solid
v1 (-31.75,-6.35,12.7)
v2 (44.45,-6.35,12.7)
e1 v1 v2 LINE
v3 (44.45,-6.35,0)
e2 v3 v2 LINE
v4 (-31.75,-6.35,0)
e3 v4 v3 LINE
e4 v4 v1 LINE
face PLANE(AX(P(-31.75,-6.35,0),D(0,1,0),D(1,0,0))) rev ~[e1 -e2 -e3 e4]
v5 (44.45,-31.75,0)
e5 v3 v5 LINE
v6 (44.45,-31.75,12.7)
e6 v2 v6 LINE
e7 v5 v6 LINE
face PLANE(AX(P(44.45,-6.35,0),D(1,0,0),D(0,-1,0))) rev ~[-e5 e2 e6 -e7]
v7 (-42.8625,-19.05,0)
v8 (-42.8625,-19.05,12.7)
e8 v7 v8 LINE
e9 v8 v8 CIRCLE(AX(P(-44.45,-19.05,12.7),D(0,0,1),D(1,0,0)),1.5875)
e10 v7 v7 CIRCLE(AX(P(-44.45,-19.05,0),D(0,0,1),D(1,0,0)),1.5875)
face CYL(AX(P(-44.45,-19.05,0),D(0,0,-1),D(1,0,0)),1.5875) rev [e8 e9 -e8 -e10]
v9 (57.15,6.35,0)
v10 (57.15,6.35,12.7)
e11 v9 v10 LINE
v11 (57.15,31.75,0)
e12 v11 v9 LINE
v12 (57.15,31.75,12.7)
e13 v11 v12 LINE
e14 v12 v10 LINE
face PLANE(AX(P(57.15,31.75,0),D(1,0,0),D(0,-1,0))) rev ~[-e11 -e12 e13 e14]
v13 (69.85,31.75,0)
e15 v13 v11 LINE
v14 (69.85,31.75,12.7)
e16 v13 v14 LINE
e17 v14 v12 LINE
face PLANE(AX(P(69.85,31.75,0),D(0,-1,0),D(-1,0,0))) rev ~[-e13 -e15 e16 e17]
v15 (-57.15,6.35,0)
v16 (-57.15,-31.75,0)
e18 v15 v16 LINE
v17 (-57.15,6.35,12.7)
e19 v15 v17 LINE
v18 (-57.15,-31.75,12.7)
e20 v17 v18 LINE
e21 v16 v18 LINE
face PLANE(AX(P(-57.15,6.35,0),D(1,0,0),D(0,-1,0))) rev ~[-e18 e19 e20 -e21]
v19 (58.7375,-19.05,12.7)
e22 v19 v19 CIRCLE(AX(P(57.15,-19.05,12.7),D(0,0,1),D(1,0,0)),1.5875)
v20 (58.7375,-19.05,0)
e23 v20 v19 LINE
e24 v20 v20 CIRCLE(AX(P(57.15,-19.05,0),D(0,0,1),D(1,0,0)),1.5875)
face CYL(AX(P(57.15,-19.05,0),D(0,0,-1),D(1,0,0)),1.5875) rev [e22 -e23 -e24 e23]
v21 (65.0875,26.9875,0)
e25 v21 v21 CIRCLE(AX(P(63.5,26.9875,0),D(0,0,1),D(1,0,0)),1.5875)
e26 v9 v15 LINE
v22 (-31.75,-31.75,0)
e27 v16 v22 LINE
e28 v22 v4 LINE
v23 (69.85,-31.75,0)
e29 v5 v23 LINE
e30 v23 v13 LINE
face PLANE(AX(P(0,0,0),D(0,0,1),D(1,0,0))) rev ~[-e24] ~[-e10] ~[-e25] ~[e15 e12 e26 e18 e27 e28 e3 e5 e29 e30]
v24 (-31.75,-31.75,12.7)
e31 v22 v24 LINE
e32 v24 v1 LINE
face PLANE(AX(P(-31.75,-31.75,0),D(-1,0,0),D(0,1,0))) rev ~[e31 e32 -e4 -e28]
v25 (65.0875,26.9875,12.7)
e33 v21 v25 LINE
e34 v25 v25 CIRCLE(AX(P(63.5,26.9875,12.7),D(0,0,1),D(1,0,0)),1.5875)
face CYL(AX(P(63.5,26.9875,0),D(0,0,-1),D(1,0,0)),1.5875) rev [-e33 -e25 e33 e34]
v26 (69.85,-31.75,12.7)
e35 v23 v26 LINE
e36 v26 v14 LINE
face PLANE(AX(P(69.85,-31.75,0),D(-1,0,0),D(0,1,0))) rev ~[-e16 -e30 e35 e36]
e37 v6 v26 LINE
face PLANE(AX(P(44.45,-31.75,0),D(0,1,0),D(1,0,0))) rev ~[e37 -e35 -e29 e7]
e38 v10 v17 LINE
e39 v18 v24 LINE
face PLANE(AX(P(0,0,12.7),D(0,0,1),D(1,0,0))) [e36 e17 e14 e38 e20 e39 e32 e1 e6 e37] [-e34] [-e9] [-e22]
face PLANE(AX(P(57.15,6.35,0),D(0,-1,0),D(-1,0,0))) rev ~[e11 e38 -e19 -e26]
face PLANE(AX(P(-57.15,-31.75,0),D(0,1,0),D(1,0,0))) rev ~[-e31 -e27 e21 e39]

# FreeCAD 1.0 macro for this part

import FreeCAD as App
import Part
import Sketcher
from FreeCAD import Vector
Q = App.Units.Quantity

doc = App.newDocument("Part")
params = doc.addObject("Spreadsheet::Sheet", "Params")
for row, (alias, value) in enumerate([
    ("sketch1_width", "1 in"),
    ("sketch1_width2", "3 in"),
    ("sketch1_diameter", "0.125 in"),
    ("sketch1_width3", "4.5 in"),
    ("sketch1_height", "1.5 in"),
    ("pad1_length", "0.5 in"),
], start=1):
    params.set(f"A{row}", alias)
    params.set(f"B{row}", "=" + value)
    params.setAlias(f"B{row}", alias)

body = doc.addObject("PartDesign::Body", "Body")

# Sketch on XY plane
sketch1 = body.newObject("Sketcher::SketchObject", "Sketch")
sketch1.AttachmentSupport = (doc.getObject("XY_Plane"), [""])
sketch1.MapMode = "FlatFace"
sketch1.addGeometry(Part.LineSegment(Vector(57.1, 6.3, 0), Vector(-57.1, 6.3, 0)), False)
sketch1.addGeometry(Part.LineSegment(Vector(-57.1, 6.3, 0), Vector(-57.1, -31.8, 0)), False)
sketch1.addGeometry(Part.LineSegment(Vector(-57.1, -31.8, 0), Vector(-31.8, -31.8, 0)), False)
sketch1.addGeometry(Part.LineSegment(Vector(-31.8, -31.8, 0), Vector(-31.8, -6.3, 0)), False)
sketch1.addGeometry(Part.LineSegment(Vector(-31.8, -6.3, 0), Vector(44.5, -6.3, 0)), False)
sketch1.addGeometry(Part.LineSegment(Vector(44.5, -6.3, 0), Vector(44.5, -31.8, 0)), False)
sketch1.addGeometry(Part.LineSegment(Vector(44.5, -31.8, 0), Vector(69.8, -31.8, 0)), False)
sketch1.addGeometry(Part.LineSegment(Vector(69.8, -31.8, 0), Vector(69.8, 31.8, 0)), False)
sketch1.addGeometry(Part.LineSegment(Vector(69.8, 31.8, 0), Vector(57.1, 31.8, 0)), False)
sketch1.addGeometry(Part.LineSegment(Vector(57.1, 31.8, 0), Vector(57.1, 6.3, 0)), False)
sketch1.addGeometry(Part.Circle(Vector(-44.5, -19.1, 0), Vector(0, 0, 1), 1.6), False)
sketch1.addGeometry(Part.Circle(Vector(57.1, -19.1, 0), Vector(0, 0, 1), 1.6), False)
sketch1.addGeometry(Part.Circle(Vector(63.5, 27, 0), Vector(0, 0, 1), 1.6), False)
sketch1.addConstraint(Sketcher.Constraint("Coincident", 0, 2, 1, 1))
sketch1.addConstraint(Sketcher.Constraint("Coincident", 1, 2, 2, 1))
sketch1.addConstraint(Sketcher.Constraint("Coincident", 2, 2, 3, 1))
sketch1.addConstraint(Sketcher.Constraint("Coincident", 3, 2, 4, 1))
sketch1.addConstraint(Sketcher.Constraint("Coincident", 4, 2, 5, 1))
sketch1.addConstraint(Sketcher.Constraint("Coincident", 5, 2, 6, 1))
sketch1.addConstraint(Sketcher.Constraint("Coincident", 6, 2, 7, 1))
sketch1.addConstraint(Sketcher.Constraint("Coincident", 7, 2, 8, 1))
sketch1.addConstraint(Sketcher.Constraint("Coincident", 8, 2, 9, 1))
sketch1.addConstraint(Sketcher.Constraint("Coincident", 9, 2, 0, 1))
sketch1.addConstraint(Sketcher.Constraint("Horizontal", 0))
sketch1.addConstraint(Sketcher.Constraint("Vertical", 1))
sketch1.addConstraint(Sketcher.Constraint("Horizontal", 2))
sketch1.addConstraint(Sketcher.Constraint("Vertical", 3))
sketch1.addConstraint(Sketcher.Constraint("Horizontal", 4))
sketch1.addConstraint(Sketcher.Constraint("Vertical", 5))
sketch1.addConstraint(Sketcher.Constraint("Horizontal", 6))
sketch1.addConstraint(Sketcher.Constraint("Vertical", 7))
sketch1.addConstraint(Sketcher.Constraint("Horizontal", 8))
sketch1.addConstraint(Sketcher.Constraint("Vertical", 9))
sketch1.addConstraint(Sketcher.Constraint("Equal", 10, 11))
sketch1.addConstraint(Sketcher.Constraint("Equal", 11, 12))
sketch1.addConstraint(Sketcher.Constraint("Symmetric", 1, 2, 8, 2, -1, 1))
sketch1.addConstraint(Sketcher.Constraint("Horizontal", 10, 3, 11, 3))
sketch1.addConstraint(Sketcher.Constraint("Horizontal", 2, 2, 5, 2))
sketch1.addConstraint(Sketcher.Constraint("Vertical", 11, 3, 8, 2))
sketch1.addConstraint(Sketcher.Constraint("Equal", 2, 6))
sketch1.addConstraint(Sketcher.Constraint("Equal", 6, 3))
sketch1.addConstraint(Sketcher.Constraint("Equal", 5, 9))
sketch1.addConstraint(Sketcher.Constraint("DistanceX", 2, 1, 2, 2, Q("1 in")))
sketch1.addConstraint(Sketcher.Constraint("DistanceX", 4, 1, 4, 2, Q("3 in")))
sketch1.addConstraint(Sketcher.Constraint("Diameter", 10, Q("0.125 in")))
sketch1.addConstraint(Sketcher.Constraint("DistanceX", 0, 2, 0, 1, Q("4.5 in")))
sketch1.addConstraint(Sketcher.Constraint("DistanceY", 1, 2, 1, 1, Q("1.5 in")))
sketch1.addConstraint(Sketcher.Constraint("DistanceX", 10, 3, 11, 3, Q("4 in")))
sketch1.addConstraint(Sketcher.Constraint("DistanceY", 10, 3, 0, 2, Q("1 in")))
sketch1.addConstraint(Sketcher.Constraint("DistanceX", -1, 1, 12, 3, Q("2.5 in")))
sketch1.addConstraint(Sketcher.Constraint("DistanceY", -1, 1, 12, 3, Q("1.0625 in")))
sketch1.setExpression("Constraints[29]", "Params.sketch1_width")
sketch1.setExpression("Constraints[30]", "Params.sketch1_width2")
sketch1.setExpression("Constraints[31]", "Params.sketch1_diameter")
sketch1.setExpression("Constraints[32]", "Params.sketch1_width3")
sketch1.setExpression("Constraints[33]", "Params.sketch1_height")
pad1 = body.newObject("PartDesign::Pad", "Pad")
pad1.Profile = sketch1
pad1.setExpression("Length", "Params.pad1_length")

doc.recompute()
